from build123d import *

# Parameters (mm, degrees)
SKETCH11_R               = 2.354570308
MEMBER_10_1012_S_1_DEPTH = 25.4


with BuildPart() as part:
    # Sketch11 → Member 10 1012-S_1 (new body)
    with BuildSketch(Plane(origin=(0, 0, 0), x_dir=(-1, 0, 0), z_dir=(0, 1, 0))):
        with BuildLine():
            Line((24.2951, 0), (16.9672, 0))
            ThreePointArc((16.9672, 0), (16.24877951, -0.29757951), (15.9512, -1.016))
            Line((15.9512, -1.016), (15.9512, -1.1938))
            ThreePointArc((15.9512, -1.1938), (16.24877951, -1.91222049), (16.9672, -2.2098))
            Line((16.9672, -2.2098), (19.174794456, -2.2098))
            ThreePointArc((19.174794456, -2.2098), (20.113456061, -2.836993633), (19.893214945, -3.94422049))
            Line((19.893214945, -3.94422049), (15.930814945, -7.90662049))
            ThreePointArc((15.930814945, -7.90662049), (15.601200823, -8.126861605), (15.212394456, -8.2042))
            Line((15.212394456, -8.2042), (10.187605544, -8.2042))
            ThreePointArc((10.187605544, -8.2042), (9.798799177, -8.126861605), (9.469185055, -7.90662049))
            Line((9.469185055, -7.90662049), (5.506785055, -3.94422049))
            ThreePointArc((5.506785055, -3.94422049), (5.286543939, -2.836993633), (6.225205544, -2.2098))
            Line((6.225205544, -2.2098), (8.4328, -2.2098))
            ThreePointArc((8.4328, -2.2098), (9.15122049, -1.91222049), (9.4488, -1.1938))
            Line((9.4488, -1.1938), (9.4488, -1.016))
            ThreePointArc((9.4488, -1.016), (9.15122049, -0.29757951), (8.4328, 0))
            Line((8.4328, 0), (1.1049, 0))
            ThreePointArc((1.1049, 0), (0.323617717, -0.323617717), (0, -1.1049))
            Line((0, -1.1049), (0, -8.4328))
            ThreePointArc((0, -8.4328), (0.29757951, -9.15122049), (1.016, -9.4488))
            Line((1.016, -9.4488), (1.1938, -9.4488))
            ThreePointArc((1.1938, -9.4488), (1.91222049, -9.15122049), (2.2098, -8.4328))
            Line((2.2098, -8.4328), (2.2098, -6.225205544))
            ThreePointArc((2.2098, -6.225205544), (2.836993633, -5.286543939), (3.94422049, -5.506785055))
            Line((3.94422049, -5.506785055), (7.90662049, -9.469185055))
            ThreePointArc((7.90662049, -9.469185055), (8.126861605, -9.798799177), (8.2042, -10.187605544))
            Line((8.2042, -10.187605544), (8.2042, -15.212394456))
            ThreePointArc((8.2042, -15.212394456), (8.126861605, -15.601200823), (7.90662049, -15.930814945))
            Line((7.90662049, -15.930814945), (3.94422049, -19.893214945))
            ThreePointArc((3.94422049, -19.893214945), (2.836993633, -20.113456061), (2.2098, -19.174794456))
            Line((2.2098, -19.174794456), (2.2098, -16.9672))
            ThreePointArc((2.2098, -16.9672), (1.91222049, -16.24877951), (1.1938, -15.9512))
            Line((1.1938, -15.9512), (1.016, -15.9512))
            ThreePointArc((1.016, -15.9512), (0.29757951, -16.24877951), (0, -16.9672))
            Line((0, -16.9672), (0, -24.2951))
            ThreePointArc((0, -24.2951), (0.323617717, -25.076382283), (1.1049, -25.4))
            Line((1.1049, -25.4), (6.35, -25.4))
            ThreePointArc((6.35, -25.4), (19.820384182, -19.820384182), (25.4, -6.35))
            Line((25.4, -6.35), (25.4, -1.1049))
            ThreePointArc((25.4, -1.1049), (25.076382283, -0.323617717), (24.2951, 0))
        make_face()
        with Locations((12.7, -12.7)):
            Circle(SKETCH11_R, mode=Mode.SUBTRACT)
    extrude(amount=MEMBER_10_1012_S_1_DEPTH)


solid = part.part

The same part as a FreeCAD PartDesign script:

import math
import FreeCAD as App
import Part
import Sketcher

V = App.Vector
Q = App.Units.Quantity

doc = App.newDocument("Part")
params = doc.addObject("Spreadsheet::Sheet", "Params")
for row, (alias, value) in enumerate([
    ("sketch1_radius", "0.04 in"),
    ("sketch1_radius2", "0.75 in"),
    ("sketch1_width", "0.007 in"),
    ("pad1_length", "1 in"),
], start=1):
    params.set(f"A{row}", alias)
    params.set(f"B{row}", "=" + value)
    params.setAlias(f"B{row}", alias)

body = doc.addObject("PartDesign::Body", "Body")

# Sketch on XZ plane
sketch1 = doc.addObject("Sketcher::SketchObject", "Sketch")
body.addObject(sketch1)
sketch1.AttachmentSupport = (doc.XZ_Plane, [""])
sketch1.MapMode = "FlatFace"
sketch1.addGeometry([
    Part.LineSegment(V(-24.3, 0, 0), V(-16.97, 0, 0)),  # 0
    Part.ArcOfCircle(Part.Circle(V(-16.97, -1.02, 0), V(0, 0, 1), 1.02), math.radians(0), math.radians(90)),  # 1
    Part.LineSegment(V(-15.95, -1.02, 0), V(-15.95, -1.19, 0)),  # 2
    Part.ArcOfCircle(Part.Circle(V(-16.97, -1.19, 0), V(0, 0, 1), 1.02), math.radians(-90), math.radians(0)),  # 3
    Part.LineSegment(V(-16.97, -2.21, 0), V(-19.17, -2.21, 0)),  # 4
    Part.ArcOfCircle(Part.Circle(V(-19.17, -3.23, 0), V(0, 0, 1), 1.02), math.radians(90), math.radians(225)),  # 5
    Part.LineSegment(V(-19.89, -3.94, 0), V(-15.93, -7.91, 0)),  # 6
    Part.ArcOfCircle(Part.Circle(V(-15.21, -7.19, 0), V(0, 0, 1), 1.02), math.radians(-135), math.radians(-90)),  # 7
    Part.LineSegment(V(-15.21, -8.2, 0), V(-10.19, -8.2, 0)),  # 8
    Part.ArcOfCircle(Part.Circle(V(-10.19, -7.19, 0), V(0, 0, 1), 1.02), math.radians(-90), math.radians(-45)),  # 9
    Part.LineSegment(V(-9.47, -7.91, 0), V(-5.51, -3.94, 0)),  # 10
    Part.ArcOfCircle(Part.Circle(V(-6.23, -3.23, 0), V(0, 0, 1), 1.02), math.radians(-45), math.radians(90)),  # 11
    Part.LineSegment(V(-6.23, -2.21, 0), V(-8.43, -2.21, 0)),  # 12
    Part.ArcOfCircle(Part.Circle(V(-8.43, -1.19, 0), V(0, 0, 1), 1.02), math.radians(180), math.radians(270)),  # 13
    Part.LineSegment(V(-9.45, -1.19, 0), V(-9.45, -1.02, 0)),  # 14
    Part.ArcOfCircle(Part.Circle(V(-8.43, -1.02, 0), V(0, 0, 1), 1.02), math.radians(90), math.radians(180)),  # 15
    Part.LineSegment(V(-8.43, 0, 0), V(-1.1, 0, 0)),  # 16
    Part.ArcOfCircle(Part.Circle(V(-1.1, -1.1, 0), V(0, 0, 1), 1.1), math.radians(0), math.radians(90)),  # 17
    Part.LineSegment(V(0, -1.1, 0), V(0, -8.43, 0)),  # 18
    Part.ArcOfCircle(Part.Circle(V(-1.02, -8.43, 0), V(0, 0, 1), 1.02), math.radians(-90), math.radians(0)),  # 19
    Part.LineSegment(V(-1.02, -9.45, 0), V(-1.19, -9.45, 0)),  # 20
    Part.ArcOfCircle(Part.Circle(V(-1.19, -8.43, 0), V(0, 0, 1), 1.02), math.radians(180), math.radians(270)),  # 21
    Part.LineSegment(V(-2.21, -8.43, 0), V(-2.21, -6.23, 0)),  # 22
    Part.ArcOfCircle(Part.Circle(V(-3.23, -6.23, 0), V(0, 0, 1), 1.02), math.radians(0), math.radians(135)),  # 23
    Part.LineSegment(V(-3.94, -5.51, 0), V(-7.91, -9.47, 0)),  # 24
    Part.ArcOfCircle(Part.Circle(V(-7.19, -10.19, 0), V(0, 0, 1), 1.02), math.radians(135), math.radians(180)),  # 25
    Part.LineSegment(V(-8.2, -10.19, 0), V(-8.2, -15.21, 0)),  # 26
    Part.ArcOfCircle(Part.Circle(V(-7.19, -15.21, 0), V(0, 0, 1), 1.02), math.radians(180), math.radians(225)),  # 27
    Part.LineSegment(V(-7.91, -15.93, 0), V(-3.94, -19.89, 0)),  # 28
    Part.ArcOfCircle(Part.Circle(V(-3.23, -19.17, 0), V(0, 0, 1), 1.02), math.radians(-135), math.radians(0)),  # 29
    Part.LineSegment(V(-2.21, -19.17, 0), V(-2.21, -16.97, 0)),  # 30
    Part.ArcOfCircle(Part.Circle(V(-1.19, -16.97, 0), V(0, 0, 1), 1.02), math.radians(90), math.radians(180)),  # 31
    Part.LineSegment(V(-1.19, -15.95, 0), V(-1.02, -15.95, 0)),  # 32
    Part.ArcOfCircle(Part.Circle(V(-1.02, -16.97, 0), V(0, 0, 1), 1.02), math.radians(0), math.radians(90)),  # 33
    Part.LineSegment(V(0, -16.97, 0), V(0, -24.3, 0)),  # 34
    Part.ArcOfCircle(Part.Circle(V(-1.1, -24.3, 0), V(0, 0, 1), 1.1), math.radians(-90), math.radians(0)),  # 35
    Part.LineSegment(V(-1.1, -25.4, 0), V(-6.35, -25.4, 0)),  # 36
    Part.ArcOfCircle(Part.Circle(V(-6.35, -6.35, 0), V(0, 0, 1), 19.05), math.radians(180), math.radians(270)),  # 37
    Part.LineSegment(V(-25.4, -6.35, 0), V(-25.4, -1.1, 0)),  # 38
    Part.ArcOfCircle(Part.Circle(V(-24.3, -1.1, 0), V(0, 0, 1), 1.1), math.radians(90), math.radians(180)),  # 39
    Part.Circle(V(-12.7, -12.7, 0), V(0, 0, 1), 2.35),  # 40
], False)
sketch1.addConstraint([
    Sketcher.Constraint("Tangent", 0, 2, 1, 2),
    Sketcher.Constraint("Tangent", 1, 1, 2, 1),
    Sketcher.Constraint("Tangent", 2, 2, 3, 2),
    Sketcher.Constraint("Tangent", 3, 1, 4, 1),
    Sketcher.Constraint("Tangent", 4, 2, 5, 1),
    Sketcher.Constraint("Tangent", 5, 2, 6, 1),
    Sketcher.Constraint("Tangent", 6, 2, 7, 1),
    Sketcher.Constraint("Tangent", 7, 2, 8, 1),
    Sketcher.Constraint("Tangent", 8, 2, 9, 1),
    Sketcher.Constraint("Tangent", 9, 2, 10, 1),
    Sketcher.Constraint("Tangent", 10, 2, 11, 1),
    Sketcher.Constraint("Tangent", 11, 2, 12, 1),
    Sketcher.Constraint("Tangent", 12, 2, 13, 2),
    Sketcher.Constraint("Tangent", 13, 1, 14, 1),
    Sketcher.Constraint("Tangent", 14, 2, 15, 2),
    Sketcher.Constraint("Tangent", 15, 1, 16, 1),
    Sketcher.Constraint("Tangent", 16, 2, 17, 2),
    Sketcher.Constraint("Tangent", 17, 1, 18, 1),
    Sketcher.Constraint("Tangent", 18, 2, 19, 2),
    Sketcher.Constraint("Tangent", 19, 1, 20, 1),
    Sketcher.Constraint("Tangent", 20, 2, 21, 2),
    Sketcher.Constraint("Tangent", 21, 1, 22, 1),
    Sketcher.Constraint("Tangent", 22, 2, 23, 1),
    Sketcher.Constraint("Tangent", 23, 2, 24, 1),
    Sketcher.Constraint("Tangent", 24, 2, 25, 1),
    Sketcher.Constraint("Tangent", 25, 2, 26, 1),
    Sketcher.Constraint("Tangent", 26, 2, 27, 1),
    Sketcher.Constraint("Tangent", 27, 2, 28, 1),
    Sketcher.Constraint("Tangent", 28, 2, 29, 1),
    Sketcher.Constraint("Tangent", 29, 2, 30, 1),
    Sketcher.Constraint("Tangent", 30, 2, 31, 2),
    Sketcher.Constraint("Tangent", 31, 1, 32, 1),
    Sketcher.Constraint("Tangent", 32, 2, 33, 2),
    Sketcher.Constraint("Tangent", 33, 1, 34, 1),
    Sketcher.Constraint("Tangent", 34, 2, 35, 2),
    Sketcher.Constraint("Tangent", 35, 1, 36, 1),
    Sketcher.Constraint("Tangent", 36, 2, 37, 2),
    Sketcher.Constraint("Tangent", 37, 1, 38, 1),
    Sketcher.Constraint("Tangent", 38, 2, 39, 2),
    Sketcher.Constraint("Tangent", 39, 1, 0, 1),
    Sketcher.Constraint("Horizontal", 0),
    Sketcher.Constraint("Vertical", 2),
    Sketcher.Constraint("Horizontal", 4),
    Sketcher.Constraint("Horizontal", 8),
    Sketcher.Constraint("Horizontal", 12),
    Sketcher.Constraint("Vertical", 14),
    Sketcher.Constraint("Horizontal", 16),
    Sketcher.Constraint("Vertical", 18),
    Sketcher.Constraint("Horizontal", 20),
    Sketcher.Constraint("Vertical", 22),
    Sketcher.Constraint("Vertical", 26),
    Sketcher.Constraint("Vertical", 30),
    Sketcher.Constraint("Horizontal", 32),
    Sketcher.Constraint("Vertical", 34),
    Sketcher.Constraint("Horizontal", 36),
    Sketcher.Constraint("Vertical", 38),
    Sketcher.Constraint("Equal", 1, 3),
    Sketcher.Constraint("Equal", 3, 5),
    Sketcher.Constraint("Equal", 5, 7),
    Sketcher.Constraint("Equal", 7, 9),
    Sketcher.Constraint("Equal", 9, 11),
    Sketcher.Constraint("Equal", 11, 13),
    Sketcher.Constraint("Equal", 13, 15),
    Sketcher.Constraint("Equal", 15, 19),
    Sketcher.Constraint("Equal", 19, 21),
    Sketcher.Constraint("Equal", 21, 23),
    Sketcher.Constraint("Equal", 23, 25),
    Sketcher.Constraint("Equal", 25, 27),
    Sketcher.Constraint("Equal", 27, 29),
    Sketcher.Constraint("Equal", 29, 31),
    Sketcher.Constraint("Equal", 31, 33),
    Sketcher.Constraint("Equal", 17, 35),
    Sketcher.Constraint("Equal", 35, 39),
    Sketcher.Constraint("PointOnObject", 0, 2, -1),
    Sketcher.Constraint("PointOnObject", 15, 1, -1),
    Sketcher.Constraint("PointOnObject", 17, 1, -2),
    Sketcher.Constraint("PointOnObject", 33, 1, -2),
    Sketcher.Constraint("Perpendicular", 6, 10),
    Sketcher.Constraint("Parallel", 10, 24),
    Sketcher.Constraint("Perpendicular", 24, 28),
    Sketcher.Constraint("Horizontal", 5, 3, 11, 3),
    Sketcher.Constraint("Horizontal", 6, 2, 9, 2),
    Sketcher.Constraint("Vertical", 23, 3, 29, 3),
    Sketcher.Constraint("Equal", 4, 12),
    Sketcher.Constraint("Equal", 0, 16),
    Sketcher.Constraint("Equal", 32, 2),
    Sketcher.Constraint("Equal", 16, 18),
    Sketcher.Constraint("Equal", 12, 22),
    Sketcher.Constraint("Equal", 8, 26),
    Sketcher.Constraint("Equal", 22, 30),
    Sketcher.Constraint("Equal", 18, 34),
    Sketcher.Constraint("Equal", 36, 38),
    Sketcher.Constraint("Radius", 1, Q("0.04 in")),
    Sketcher.Constraint("Radius", 37, Q("0.75 in")),
    Sketcher.Constraint("DistanceY", 35, 1, -1, 1, Q("1 in")),
    Sketcher.Constraint("DistanceX", 40, 3, -1, 1, Q("0.5 in")),
    Sketcher.Constraint("DistanceY", 40, 3, -1, 1, Q("0.5 in")),
    Sketcher.Constraint("Radius", 17, Q("0.0435 in")),
    Sketcher.Constraint("DistanceX", 20, 2, 20, 1, Q("0.007 in")),
    Sketcher.Constraint("Diameter", 40, Q("4.709141 mm")),
    Sketcher.Constraint("DistanceX", 0, 1, 0, 2, Q("0.2885 in")),
    Sketcher.Constraint("DistanceY", 7, 3, -1, 1, Q("0.283 in")),
    Sketcher.Constraint("DistanceX", 8, 1, 8, 2, Q("5.024789 mm")),
])
sketch1.setExpression("Constraints[92]", "Params.sketch1_radius")
sketch1.setExpression("Constraints[93]", "Params.sketch1_radius2")
sketch1.setExpression("Constraints[98]", "Params.sketch1_width")
pad1 = doc.addObject("PartDesign::Pad", "Pad")
body.addObject(pad1)
pad1.Profile = sketch1
pad1.setExpression("Length", "Params.pad1_length")
pad1.Reversed = True

doc.recompute()
